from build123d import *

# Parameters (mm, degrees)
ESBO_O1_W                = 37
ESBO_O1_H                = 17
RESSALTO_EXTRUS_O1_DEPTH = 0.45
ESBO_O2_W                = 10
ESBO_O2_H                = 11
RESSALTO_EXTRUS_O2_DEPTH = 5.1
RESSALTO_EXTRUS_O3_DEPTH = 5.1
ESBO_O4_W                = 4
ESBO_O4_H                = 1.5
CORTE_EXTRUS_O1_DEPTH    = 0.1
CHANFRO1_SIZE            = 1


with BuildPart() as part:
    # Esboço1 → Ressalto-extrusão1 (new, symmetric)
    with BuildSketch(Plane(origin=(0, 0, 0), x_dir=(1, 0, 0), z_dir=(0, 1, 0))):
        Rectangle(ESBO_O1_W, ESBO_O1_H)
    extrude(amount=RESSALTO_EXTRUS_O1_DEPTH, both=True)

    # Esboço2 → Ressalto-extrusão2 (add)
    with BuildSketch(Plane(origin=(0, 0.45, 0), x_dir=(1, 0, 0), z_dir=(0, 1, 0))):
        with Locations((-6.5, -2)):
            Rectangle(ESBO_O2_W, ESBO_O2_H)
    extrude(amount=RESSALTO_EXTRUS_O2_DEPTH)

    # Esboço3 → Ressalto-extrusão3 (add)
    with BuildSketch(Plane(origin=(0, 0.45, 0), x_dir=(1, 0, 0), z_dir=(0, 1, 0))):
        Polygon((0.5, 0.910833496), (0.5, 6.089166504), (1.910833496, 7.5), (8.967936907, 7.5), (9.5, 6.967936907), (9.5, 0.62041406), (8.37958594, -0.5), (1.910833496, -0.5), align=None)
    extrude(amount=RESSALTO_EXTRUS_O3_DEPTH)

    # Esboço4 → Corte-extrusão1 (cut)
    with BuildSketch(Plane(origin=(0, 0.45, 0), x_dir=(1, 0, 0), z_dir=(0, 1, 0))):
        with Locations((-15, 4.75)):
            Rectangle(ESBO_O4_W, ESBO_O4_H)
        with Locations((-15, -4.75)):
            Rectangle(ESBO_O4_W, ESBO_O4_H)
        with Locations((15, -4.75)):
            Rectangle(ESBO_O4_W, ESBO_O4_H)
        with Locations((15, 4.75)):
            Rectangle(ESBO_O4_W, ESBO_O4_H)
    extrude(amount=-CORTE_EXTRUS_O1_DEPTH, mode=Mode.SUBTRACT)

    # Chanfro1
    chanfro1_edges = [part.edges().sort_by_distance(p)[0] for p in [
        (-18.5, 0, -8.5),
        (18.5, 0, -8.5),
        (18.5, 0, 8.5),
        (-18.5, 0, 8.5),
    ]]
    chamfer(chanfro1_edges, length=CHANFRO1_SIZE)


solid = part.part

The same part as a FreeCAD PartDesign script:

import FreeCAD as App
import Part
import Sketcher
from FreeCAD import Vector
Q = App.Units.Quantity


def edges_at(feature, points):
    """Names of the edges that pass closest to the given points."""
    edges = feature.Shape.Edges
    near = lambda p: min(range(len(edges)), key=lambda i: edges[i].distToShape(Part.Vertex(*p))[0])
    return sorted({f"Edge{near(p) + 1}" for p in points})

doc = App.newDocument("Part")
params = doc.addObject("Spreadsheet::Sheet", "Params")
for row, (alias, value) in enumerate([
    ("sketch1_width", "37 mm"),
    ("sketch1_height", "17 mm"),
    ("pad1_length", "0.9 mm"),
    ("sketch2_width", "10 mm"),
    ("sketch2_height", "11 mm"),
    ("pad2_length", "5.1 mm"),
    ("pad3_length", "5.1 mm"),
    ("sketch4_width", "4 mm"),
    ("sketch4_height", "1.5 mm"),
    ("pocket1_length", "0.1 mm"),
    ("chamfer_size", "1 mm"),
], start=1):
    params.set(f"A{row}", alias)
    params.set(f"B{row}", "=" + value)
    params.setAlias(f"B{row}", alias)

body = doc.addObject("PartDesign::Body", "Body")

# Sketch on XZ plane
sketch1 = doc.addObject("Sketcher::SketchObject", "Sketch")
body.addObject(sketch1)
sketch1.AttachmentSupport = (doc.XZ_Plane, [""])
sketch1.MapMode = "FlatFace"
sketch1.addGeometry([
    Part.LineSegment(Vector(-18, -8, 0), Vector(-18, 8, 0)),
    Part.LineSegment(Vector(-18, 8, 0), Vector(18, 8, 0)),
    Part.LineSegment(Vector(18, 8, 0), Vector(18, -8, 0)),
    Part.LineSegment(Vector(18, -8, 0), Vector(-18, -8, 0)),
], False)
sketch1.addConstraint([
    Sketcher.Constraint("Coincident", 0, 2, 1, 1),
    Sketcher.Constraint("Coincident", 1, 2, 2, 1),
    Sketcher.Constraint("Coincident", 2, 2, 3, 1),
    Sketcher.Constraint("Coincident", 3, 2, 0, 1),
    Sketcher.Constraint("Vertical", 0),
    Sketcher.Constraint("Horizontal", 1),
    Sketcher.Constraint("Vertical", 2),
    Sketcher.Constraint("Horizontal", 3),
    Sketcher.Constraint("Symmetric", 0, 2, 2, 2, -1, 1),
    Sketcher.Constraint("DistanceX", 1, 1, 1, 2, Q("37 mm")),
    Sketcher.Constraint("DistanceY", 0, 1, 0, 2, Q("17 mm")),
])
sketch1.setExpression("Constraints[9]", "Params.sketch1_width")
sketch1.setExpression("Constraints[10]", "Params.sketch1_height")
pad1 = doc.addObject("PartDesign::Pad", "Pad")
body.addObject(pad1)
pad1.Profile = sketch1
pad1.setExpression("Length", "Params.pad1_length")
pad1.Midplane = True

# Sketch on XZ plane
sketch2 = doc.addObject("Sketcher::SketchObject", "Sketch001")
body.addObject(sketch2)
sketch2.AttachmentSupport = (doc.XZ_Plane, [""])
sketch2.MapMode = "FlatFace"
sketch2.AttachmentOffset = App.Placement(Vector(0, 0, -0.45), App.Rotation())
sketch2.addGeometry([
    Part.LineSegment(Vector(-12, -4, 0), Vector(-12, 8, 0)),
    Part.LineSegment(Vector(-12, 8, 0), Vector(-2, 8, 0)),
    Part.LineSegment(Vector(-2, 8, 0), Vector(-2, -4, 0)),
    Part.LineSegment(Vector(-2, -4, 0), Vector(-12, -4, 0)),
], False)
sketch2.addConstraint([
    Sketcher.Constraint("Coincident", 0, 2, 1, 1),
    Sketcher.Constraint("Coincident", 1, 2, 2, 1),
    Sketcher.Constraint("Coincident", 2, 2, 3, 1),
    Sketcher.Constraint("Coincident", 3, 2, 0, 1),
    Sketcher.Constraint("Vertical", 0),
    Sketcher.Constraint("Horizontal", 1),
    Sketcher.Constraint("Vertical", 2),
    Sketcher.Constraint("Horizontal", 3),
    Sketcher.Constraint("DistanceX", 1, 1, 1, 2, Q("10 mm")),
    Sketcher.Constraint("DistanceY", 0, 1, 0, 2, Q("11 mm")),
    Sketcher.Constraint("DistanceX", 0, 2, -1, 1, Q("11.5 mm")),
    Sketcher.Constraint("DistanceY", -1, 1, 0, 2, Q("7.5 mm")),
])
sketch2.setExpression("Constraints[8]", "Params.sketch2_width")
sketch2.setExpression("Constraints[9]", "Params.sketch2_height")
pad2 = doc.addObject("PartDesign::Pad", "Pad001")
body.addObject(pad2)
pad2.Profile = sketch2
pad2.setExpression("Length", "Params.pad2_length")
pad2.Reversed = True

# Sketch on XZ plane
sketch3 = doc.addObject("Sketcher::SketchObject", "Sketch002")
body.addObject(sketch3)
sketch3.AttachmentSupport = (doc.XZ_Plane, [""])
sketch3.MapMode = "FlatFace"
sketch3.AttachmentOffset = App.Placement(Vector(0, 0, -0.45), App.Rotation())
sketch3.addGeometry([
    Part.LineSegment(Vector(0.5, -6.1, 0), Vector(0.5, -0.9, 0)),  # 0
    Part.LineSegment(Vector(0.5, -0.9, 0), Vector(1.9, 0.5, 0)),  # 1
    Part.LineSegment(Vector(1.9, 0.5, 0), Vector(8.4, 0.5, 0)),  # 2
    Part.LineSegment(Vector(8.4, 0.5, 0), Vector(9.5, -0.6, 0)),  # 3
    Part.LineSegment(Vector(9.5, -0.6, 0), Vector(9.5, -7, 0)),  # 4
    Part.LineSegment(Vector(9.5, -7, 0), Vector(9, -7.5, 0)),  # 5
    Part.LineSegment(Vector(9, -7.5, 0), Vector(1.9, -7.5, 0)),  # 6
    Part.LineSegment(Vector(1.9, -7.5, 0), Vector(0.5, -6.1, 0)),  # 7
], False)
sketch3.addConstraint([
    Sketcher.Constraint("Coincident", 0, 2, 1, 1),
    Sketcher.Constraint("Coincident", 1, 2, 2, 1),
    Sketcher.Constraint("Coincident", 2, 2, 3, 1),
    Sketcher.Constraint("Coincident", 3, 2, 4, 1),
    Sketcher.Constraint("Coincident", 4, 2, 5, 1),
    Sketcher.Constraint("Coincident", 5, 2, 6, 1),
    Sketcher.Constraint("Coincident", 6, 2, 7, 1),
    Sketcher.Constraint("Coincident", 7, 2, 0, 1),
    Sketcher.Constraint("Vertical", 0),
    Sketcher.Constraint("Horizontal", 2),
    Sketcher.Constraint("Vertical", 4),
    Sketcher.Constraint("Horizontal", 6),
    Sketcher.Constraint("Perpendicular", 1, 3),
    Sketcher.Constraint("Perpendicular", 3, 5),
    Sketcher.Constraint("Perpendicular", 5, 7),
    Sketcher.Constraint("Vertical", 1, 2, 6, 2),
    Sketcher.Constraint("Equal", 1, 7),
    Sketcher.Constraint("DistanceX", 0, 2, 3, 2, Q("9 mm")),
    Sketcher.Constraint("DistanceY", 5, 2, 2, 2, Q("8 mm")),
    Sketcher.Constraint("DistanceX", -1, 1, 0, 2, Q("0.5 mm")),
    Sketcher.Constraint("DistanceY", -1, 1, 1, 2, Q("0.5 mm")),
    Sketcher.Constraint("Distance", 1, Q("1.99522 mm")),
    Sketcher.Constraint("Distance", 5, Q("0.752451 mm")),
    Sketcher.Constraint("DistanceX", 2, 1, 2, 2, Q("6.468752 mm")),
])
pad3 = doc.addObject("PartDesign::Pad", "Pad002")
body.addObject(pad3)
pad3.Profile = sketch3
pad3.setExpression("Length", "Params.pad3_length")
pad3.Reversed = True

# Sketch on XZ plane
sketch4 = doc.addObject("Sketcher::SketchObject", "Sketch003")
body.addObject(sketch4)
sketch4.AttachmentSupport = (doc.XZ_Plane, [""])
sketch4.MapMode = "FlatFace"
sketch4.AttachmentOffset = App.Placement(Vector(0, 0, -0.45), App.Rotation())
sketch4.addGeometry([
    Part.LineSegment(Vector(-17, -5.5, 0), Vector(-17, -4, 0)),  # 0
    Part.LineSegment(Vector(-17, -4, 0), Vector(-13, -4, 0)),  # 1
    Part.LineSegment(Vector(-13, -4, 0), Vector(-13, -5.5, 0)),  # 2
    Part.LineSegment(Vector(-13, -5.5, 0), Vector(-17, -5.5, 0)),  # 3
    Part.LineSegment(Vector(-17, 4, 0), Vector(-17, 5.5, 0)),  # 4
    Part.LineSegment(Vector(-17, 5.5, 0), Vector(-13, 5.5, 0)),  # 5
    Part.LineSegment(Vector(-13, 5.5, 0), Vector(-13, 4, 0)),  # 6
    Part.LineSegment(Vector(-13, 4, 0), Vector(-17, 4, 0)),  # 7
    Part.LineSegment(Vector(13, 4, 0), Vector(13, 5.5, 0)),  # 8
    Part.LineSegment(Vector(13, 5.5, 0), Vector(17, 5.5, 0)),  # 9
    Part.LineSegment(Vector(17, 5.5, 0), Vector(17, 4, 0)),  # 10
    Part.LineSegment(Vector(17, 4, 0), Vector(13, 4, 0)),  # 11
    Part.LineSegment(Vector(13, -5.5, 0), Vector(13, -4, 0)),  # 12
    Part.LineSegment(Vector(13, -4, 0), Vector(17, -4, 0)),  # 13
    Part.LineSegment(Vector(17, -4, 0), Vector(17, -5.5, 0)),  # 14
    Part.LineSegment(Vector(17, -5.5, 0), Vector(13, -5.5, 0)),  # 15
], False)
sketch4.addConstraint([
    Sketcher.Constraint("Coincident", 0, 2, 1, 1),
    Sketcher.Constraint("Coincident", 1, 2, 2, 1),
    Sketcher.Constraint("Coincident", 2, 2, 3, 1),
    Sketcher.Constraint("Coincident", 3, 2, 0, 1),
    Sketcher.Constraint("Coincident", 4, 2, 5, 1),
    Sketcher.Constraint("Coincident", 5, 2, 6, 1),
    Sketcher.Constraint("Coincident", 6, 2, 7, 1),
    Sketcher.Constraint("Coincident", 7, 2, 4, 1),
    Sketcher.Constraint("Coincident", 8, 2, 9, 1),
    Sketcher.Constraint("Coincident", 9, 2, 10, 1),
    Sketcher.Constraint("Coincident", 10, 2, 11, 1),
    Sketcher.Constraint("Coincident", 11, 2, 8, 1),
    Sketcher.Constraint("Coincident", 12, 2, 13, 1),
    Sketcher.Constraint("Coincident", 13, 2, 14, 1),
    Sketcher.Constraint("Coincident", 14, 2, 15, 1),
    Sketcher.Constraint("Coincident", 15, 2, 12, 1),
    Sketcher.Constraint("Vertical", 0),
    Sketcher.Constraint("Horizontal", 1),
    Sketcher.Constraint("Vertical", 2),
    Sketcher.Constraint("Horizontal", 3),
    Sketcher.Constraint("Vertical", 4),
    Sketcher.Constraint("Horizontal", 5),
    Sketcher.Constraint("Vertical", 6),
    Sketcher.Constraint("Horizontal", 7),
    Sketcher.Constraint("Vertical", 8),
    Sketcher.Constraint("Horizontal", 9),
    Sketcher.Constraint("Vertical", 10),
    Sketcher.Constraint("Horizontal", 11),
    Sketcher.Constraint("Vertical", 12),
    Sketcher.Constraint("Horizontal", 13),
    Sketcher.Constraint("Vertical", 14),
    Sketcher.Constraint("Horizontal", 15),
    Sketcher.Constraint("Symmetric", 2, 2, 8, 2, -1, 1),
    Sketcher.Constraint("Symmetric", 0, 2, 10, 2, -1, 1),
    Sketcher.Constraint("Symmetric", 6, 2, 12, 2, -1, 1),
    Sketcher.Constraint("Symmetric", 4, 2, 14, 2, -1, 1),
    Sketcher.Constraint("Symmetric", 5, 2, 8, 2, -2),
    Sketcher.Constraint("Symmetric", 7, 2, 10, 2, -2),
    Sketcher.Constraint("DistanceX", 1, 1, 1, 2, Q("4 mm")),
    Sketcher.Constraint("DistanceY", 0, 1, 0, 2, Q("1.5 mm")),
    Sketcher.Constraint("DistanceX", 0, 2, -1, 1, Q("17 mm")),
    Sketcher.Constraint("DistanceY", 0, 2, -1, 1, Q("4 mm")),
])
sketch4.setExpression("Constraints[38]", "Params.sketch4_width")
sketch4.setExpression("Constraints[39]", "Params.sketch4_height")
pocket1 = doc.addObject("PartDesign::Pocket", "Pocket")
body.addObject(pocket1)
pocket1.Profile = sketch4
pocket1.setExpression("Length", "Params.pocket1_length")
pocket1.Reversed = True
doc.recompute()

chamfer = doc.addObject("PartDesign::Chamfer", "Chamfer")
body.addObject(chamfer)
chamfer.Base = (pocket1, edges_at(pocket1, [
    (-18.5, 0, -8.5),
    (18.5, 0, -8.5),
    (18.5, 0, 8.5),
    (-18.5, 0, 8.5),
]))
chamfer.setExpression("Size", "Params.chamfer_size")

doc.recompute()
